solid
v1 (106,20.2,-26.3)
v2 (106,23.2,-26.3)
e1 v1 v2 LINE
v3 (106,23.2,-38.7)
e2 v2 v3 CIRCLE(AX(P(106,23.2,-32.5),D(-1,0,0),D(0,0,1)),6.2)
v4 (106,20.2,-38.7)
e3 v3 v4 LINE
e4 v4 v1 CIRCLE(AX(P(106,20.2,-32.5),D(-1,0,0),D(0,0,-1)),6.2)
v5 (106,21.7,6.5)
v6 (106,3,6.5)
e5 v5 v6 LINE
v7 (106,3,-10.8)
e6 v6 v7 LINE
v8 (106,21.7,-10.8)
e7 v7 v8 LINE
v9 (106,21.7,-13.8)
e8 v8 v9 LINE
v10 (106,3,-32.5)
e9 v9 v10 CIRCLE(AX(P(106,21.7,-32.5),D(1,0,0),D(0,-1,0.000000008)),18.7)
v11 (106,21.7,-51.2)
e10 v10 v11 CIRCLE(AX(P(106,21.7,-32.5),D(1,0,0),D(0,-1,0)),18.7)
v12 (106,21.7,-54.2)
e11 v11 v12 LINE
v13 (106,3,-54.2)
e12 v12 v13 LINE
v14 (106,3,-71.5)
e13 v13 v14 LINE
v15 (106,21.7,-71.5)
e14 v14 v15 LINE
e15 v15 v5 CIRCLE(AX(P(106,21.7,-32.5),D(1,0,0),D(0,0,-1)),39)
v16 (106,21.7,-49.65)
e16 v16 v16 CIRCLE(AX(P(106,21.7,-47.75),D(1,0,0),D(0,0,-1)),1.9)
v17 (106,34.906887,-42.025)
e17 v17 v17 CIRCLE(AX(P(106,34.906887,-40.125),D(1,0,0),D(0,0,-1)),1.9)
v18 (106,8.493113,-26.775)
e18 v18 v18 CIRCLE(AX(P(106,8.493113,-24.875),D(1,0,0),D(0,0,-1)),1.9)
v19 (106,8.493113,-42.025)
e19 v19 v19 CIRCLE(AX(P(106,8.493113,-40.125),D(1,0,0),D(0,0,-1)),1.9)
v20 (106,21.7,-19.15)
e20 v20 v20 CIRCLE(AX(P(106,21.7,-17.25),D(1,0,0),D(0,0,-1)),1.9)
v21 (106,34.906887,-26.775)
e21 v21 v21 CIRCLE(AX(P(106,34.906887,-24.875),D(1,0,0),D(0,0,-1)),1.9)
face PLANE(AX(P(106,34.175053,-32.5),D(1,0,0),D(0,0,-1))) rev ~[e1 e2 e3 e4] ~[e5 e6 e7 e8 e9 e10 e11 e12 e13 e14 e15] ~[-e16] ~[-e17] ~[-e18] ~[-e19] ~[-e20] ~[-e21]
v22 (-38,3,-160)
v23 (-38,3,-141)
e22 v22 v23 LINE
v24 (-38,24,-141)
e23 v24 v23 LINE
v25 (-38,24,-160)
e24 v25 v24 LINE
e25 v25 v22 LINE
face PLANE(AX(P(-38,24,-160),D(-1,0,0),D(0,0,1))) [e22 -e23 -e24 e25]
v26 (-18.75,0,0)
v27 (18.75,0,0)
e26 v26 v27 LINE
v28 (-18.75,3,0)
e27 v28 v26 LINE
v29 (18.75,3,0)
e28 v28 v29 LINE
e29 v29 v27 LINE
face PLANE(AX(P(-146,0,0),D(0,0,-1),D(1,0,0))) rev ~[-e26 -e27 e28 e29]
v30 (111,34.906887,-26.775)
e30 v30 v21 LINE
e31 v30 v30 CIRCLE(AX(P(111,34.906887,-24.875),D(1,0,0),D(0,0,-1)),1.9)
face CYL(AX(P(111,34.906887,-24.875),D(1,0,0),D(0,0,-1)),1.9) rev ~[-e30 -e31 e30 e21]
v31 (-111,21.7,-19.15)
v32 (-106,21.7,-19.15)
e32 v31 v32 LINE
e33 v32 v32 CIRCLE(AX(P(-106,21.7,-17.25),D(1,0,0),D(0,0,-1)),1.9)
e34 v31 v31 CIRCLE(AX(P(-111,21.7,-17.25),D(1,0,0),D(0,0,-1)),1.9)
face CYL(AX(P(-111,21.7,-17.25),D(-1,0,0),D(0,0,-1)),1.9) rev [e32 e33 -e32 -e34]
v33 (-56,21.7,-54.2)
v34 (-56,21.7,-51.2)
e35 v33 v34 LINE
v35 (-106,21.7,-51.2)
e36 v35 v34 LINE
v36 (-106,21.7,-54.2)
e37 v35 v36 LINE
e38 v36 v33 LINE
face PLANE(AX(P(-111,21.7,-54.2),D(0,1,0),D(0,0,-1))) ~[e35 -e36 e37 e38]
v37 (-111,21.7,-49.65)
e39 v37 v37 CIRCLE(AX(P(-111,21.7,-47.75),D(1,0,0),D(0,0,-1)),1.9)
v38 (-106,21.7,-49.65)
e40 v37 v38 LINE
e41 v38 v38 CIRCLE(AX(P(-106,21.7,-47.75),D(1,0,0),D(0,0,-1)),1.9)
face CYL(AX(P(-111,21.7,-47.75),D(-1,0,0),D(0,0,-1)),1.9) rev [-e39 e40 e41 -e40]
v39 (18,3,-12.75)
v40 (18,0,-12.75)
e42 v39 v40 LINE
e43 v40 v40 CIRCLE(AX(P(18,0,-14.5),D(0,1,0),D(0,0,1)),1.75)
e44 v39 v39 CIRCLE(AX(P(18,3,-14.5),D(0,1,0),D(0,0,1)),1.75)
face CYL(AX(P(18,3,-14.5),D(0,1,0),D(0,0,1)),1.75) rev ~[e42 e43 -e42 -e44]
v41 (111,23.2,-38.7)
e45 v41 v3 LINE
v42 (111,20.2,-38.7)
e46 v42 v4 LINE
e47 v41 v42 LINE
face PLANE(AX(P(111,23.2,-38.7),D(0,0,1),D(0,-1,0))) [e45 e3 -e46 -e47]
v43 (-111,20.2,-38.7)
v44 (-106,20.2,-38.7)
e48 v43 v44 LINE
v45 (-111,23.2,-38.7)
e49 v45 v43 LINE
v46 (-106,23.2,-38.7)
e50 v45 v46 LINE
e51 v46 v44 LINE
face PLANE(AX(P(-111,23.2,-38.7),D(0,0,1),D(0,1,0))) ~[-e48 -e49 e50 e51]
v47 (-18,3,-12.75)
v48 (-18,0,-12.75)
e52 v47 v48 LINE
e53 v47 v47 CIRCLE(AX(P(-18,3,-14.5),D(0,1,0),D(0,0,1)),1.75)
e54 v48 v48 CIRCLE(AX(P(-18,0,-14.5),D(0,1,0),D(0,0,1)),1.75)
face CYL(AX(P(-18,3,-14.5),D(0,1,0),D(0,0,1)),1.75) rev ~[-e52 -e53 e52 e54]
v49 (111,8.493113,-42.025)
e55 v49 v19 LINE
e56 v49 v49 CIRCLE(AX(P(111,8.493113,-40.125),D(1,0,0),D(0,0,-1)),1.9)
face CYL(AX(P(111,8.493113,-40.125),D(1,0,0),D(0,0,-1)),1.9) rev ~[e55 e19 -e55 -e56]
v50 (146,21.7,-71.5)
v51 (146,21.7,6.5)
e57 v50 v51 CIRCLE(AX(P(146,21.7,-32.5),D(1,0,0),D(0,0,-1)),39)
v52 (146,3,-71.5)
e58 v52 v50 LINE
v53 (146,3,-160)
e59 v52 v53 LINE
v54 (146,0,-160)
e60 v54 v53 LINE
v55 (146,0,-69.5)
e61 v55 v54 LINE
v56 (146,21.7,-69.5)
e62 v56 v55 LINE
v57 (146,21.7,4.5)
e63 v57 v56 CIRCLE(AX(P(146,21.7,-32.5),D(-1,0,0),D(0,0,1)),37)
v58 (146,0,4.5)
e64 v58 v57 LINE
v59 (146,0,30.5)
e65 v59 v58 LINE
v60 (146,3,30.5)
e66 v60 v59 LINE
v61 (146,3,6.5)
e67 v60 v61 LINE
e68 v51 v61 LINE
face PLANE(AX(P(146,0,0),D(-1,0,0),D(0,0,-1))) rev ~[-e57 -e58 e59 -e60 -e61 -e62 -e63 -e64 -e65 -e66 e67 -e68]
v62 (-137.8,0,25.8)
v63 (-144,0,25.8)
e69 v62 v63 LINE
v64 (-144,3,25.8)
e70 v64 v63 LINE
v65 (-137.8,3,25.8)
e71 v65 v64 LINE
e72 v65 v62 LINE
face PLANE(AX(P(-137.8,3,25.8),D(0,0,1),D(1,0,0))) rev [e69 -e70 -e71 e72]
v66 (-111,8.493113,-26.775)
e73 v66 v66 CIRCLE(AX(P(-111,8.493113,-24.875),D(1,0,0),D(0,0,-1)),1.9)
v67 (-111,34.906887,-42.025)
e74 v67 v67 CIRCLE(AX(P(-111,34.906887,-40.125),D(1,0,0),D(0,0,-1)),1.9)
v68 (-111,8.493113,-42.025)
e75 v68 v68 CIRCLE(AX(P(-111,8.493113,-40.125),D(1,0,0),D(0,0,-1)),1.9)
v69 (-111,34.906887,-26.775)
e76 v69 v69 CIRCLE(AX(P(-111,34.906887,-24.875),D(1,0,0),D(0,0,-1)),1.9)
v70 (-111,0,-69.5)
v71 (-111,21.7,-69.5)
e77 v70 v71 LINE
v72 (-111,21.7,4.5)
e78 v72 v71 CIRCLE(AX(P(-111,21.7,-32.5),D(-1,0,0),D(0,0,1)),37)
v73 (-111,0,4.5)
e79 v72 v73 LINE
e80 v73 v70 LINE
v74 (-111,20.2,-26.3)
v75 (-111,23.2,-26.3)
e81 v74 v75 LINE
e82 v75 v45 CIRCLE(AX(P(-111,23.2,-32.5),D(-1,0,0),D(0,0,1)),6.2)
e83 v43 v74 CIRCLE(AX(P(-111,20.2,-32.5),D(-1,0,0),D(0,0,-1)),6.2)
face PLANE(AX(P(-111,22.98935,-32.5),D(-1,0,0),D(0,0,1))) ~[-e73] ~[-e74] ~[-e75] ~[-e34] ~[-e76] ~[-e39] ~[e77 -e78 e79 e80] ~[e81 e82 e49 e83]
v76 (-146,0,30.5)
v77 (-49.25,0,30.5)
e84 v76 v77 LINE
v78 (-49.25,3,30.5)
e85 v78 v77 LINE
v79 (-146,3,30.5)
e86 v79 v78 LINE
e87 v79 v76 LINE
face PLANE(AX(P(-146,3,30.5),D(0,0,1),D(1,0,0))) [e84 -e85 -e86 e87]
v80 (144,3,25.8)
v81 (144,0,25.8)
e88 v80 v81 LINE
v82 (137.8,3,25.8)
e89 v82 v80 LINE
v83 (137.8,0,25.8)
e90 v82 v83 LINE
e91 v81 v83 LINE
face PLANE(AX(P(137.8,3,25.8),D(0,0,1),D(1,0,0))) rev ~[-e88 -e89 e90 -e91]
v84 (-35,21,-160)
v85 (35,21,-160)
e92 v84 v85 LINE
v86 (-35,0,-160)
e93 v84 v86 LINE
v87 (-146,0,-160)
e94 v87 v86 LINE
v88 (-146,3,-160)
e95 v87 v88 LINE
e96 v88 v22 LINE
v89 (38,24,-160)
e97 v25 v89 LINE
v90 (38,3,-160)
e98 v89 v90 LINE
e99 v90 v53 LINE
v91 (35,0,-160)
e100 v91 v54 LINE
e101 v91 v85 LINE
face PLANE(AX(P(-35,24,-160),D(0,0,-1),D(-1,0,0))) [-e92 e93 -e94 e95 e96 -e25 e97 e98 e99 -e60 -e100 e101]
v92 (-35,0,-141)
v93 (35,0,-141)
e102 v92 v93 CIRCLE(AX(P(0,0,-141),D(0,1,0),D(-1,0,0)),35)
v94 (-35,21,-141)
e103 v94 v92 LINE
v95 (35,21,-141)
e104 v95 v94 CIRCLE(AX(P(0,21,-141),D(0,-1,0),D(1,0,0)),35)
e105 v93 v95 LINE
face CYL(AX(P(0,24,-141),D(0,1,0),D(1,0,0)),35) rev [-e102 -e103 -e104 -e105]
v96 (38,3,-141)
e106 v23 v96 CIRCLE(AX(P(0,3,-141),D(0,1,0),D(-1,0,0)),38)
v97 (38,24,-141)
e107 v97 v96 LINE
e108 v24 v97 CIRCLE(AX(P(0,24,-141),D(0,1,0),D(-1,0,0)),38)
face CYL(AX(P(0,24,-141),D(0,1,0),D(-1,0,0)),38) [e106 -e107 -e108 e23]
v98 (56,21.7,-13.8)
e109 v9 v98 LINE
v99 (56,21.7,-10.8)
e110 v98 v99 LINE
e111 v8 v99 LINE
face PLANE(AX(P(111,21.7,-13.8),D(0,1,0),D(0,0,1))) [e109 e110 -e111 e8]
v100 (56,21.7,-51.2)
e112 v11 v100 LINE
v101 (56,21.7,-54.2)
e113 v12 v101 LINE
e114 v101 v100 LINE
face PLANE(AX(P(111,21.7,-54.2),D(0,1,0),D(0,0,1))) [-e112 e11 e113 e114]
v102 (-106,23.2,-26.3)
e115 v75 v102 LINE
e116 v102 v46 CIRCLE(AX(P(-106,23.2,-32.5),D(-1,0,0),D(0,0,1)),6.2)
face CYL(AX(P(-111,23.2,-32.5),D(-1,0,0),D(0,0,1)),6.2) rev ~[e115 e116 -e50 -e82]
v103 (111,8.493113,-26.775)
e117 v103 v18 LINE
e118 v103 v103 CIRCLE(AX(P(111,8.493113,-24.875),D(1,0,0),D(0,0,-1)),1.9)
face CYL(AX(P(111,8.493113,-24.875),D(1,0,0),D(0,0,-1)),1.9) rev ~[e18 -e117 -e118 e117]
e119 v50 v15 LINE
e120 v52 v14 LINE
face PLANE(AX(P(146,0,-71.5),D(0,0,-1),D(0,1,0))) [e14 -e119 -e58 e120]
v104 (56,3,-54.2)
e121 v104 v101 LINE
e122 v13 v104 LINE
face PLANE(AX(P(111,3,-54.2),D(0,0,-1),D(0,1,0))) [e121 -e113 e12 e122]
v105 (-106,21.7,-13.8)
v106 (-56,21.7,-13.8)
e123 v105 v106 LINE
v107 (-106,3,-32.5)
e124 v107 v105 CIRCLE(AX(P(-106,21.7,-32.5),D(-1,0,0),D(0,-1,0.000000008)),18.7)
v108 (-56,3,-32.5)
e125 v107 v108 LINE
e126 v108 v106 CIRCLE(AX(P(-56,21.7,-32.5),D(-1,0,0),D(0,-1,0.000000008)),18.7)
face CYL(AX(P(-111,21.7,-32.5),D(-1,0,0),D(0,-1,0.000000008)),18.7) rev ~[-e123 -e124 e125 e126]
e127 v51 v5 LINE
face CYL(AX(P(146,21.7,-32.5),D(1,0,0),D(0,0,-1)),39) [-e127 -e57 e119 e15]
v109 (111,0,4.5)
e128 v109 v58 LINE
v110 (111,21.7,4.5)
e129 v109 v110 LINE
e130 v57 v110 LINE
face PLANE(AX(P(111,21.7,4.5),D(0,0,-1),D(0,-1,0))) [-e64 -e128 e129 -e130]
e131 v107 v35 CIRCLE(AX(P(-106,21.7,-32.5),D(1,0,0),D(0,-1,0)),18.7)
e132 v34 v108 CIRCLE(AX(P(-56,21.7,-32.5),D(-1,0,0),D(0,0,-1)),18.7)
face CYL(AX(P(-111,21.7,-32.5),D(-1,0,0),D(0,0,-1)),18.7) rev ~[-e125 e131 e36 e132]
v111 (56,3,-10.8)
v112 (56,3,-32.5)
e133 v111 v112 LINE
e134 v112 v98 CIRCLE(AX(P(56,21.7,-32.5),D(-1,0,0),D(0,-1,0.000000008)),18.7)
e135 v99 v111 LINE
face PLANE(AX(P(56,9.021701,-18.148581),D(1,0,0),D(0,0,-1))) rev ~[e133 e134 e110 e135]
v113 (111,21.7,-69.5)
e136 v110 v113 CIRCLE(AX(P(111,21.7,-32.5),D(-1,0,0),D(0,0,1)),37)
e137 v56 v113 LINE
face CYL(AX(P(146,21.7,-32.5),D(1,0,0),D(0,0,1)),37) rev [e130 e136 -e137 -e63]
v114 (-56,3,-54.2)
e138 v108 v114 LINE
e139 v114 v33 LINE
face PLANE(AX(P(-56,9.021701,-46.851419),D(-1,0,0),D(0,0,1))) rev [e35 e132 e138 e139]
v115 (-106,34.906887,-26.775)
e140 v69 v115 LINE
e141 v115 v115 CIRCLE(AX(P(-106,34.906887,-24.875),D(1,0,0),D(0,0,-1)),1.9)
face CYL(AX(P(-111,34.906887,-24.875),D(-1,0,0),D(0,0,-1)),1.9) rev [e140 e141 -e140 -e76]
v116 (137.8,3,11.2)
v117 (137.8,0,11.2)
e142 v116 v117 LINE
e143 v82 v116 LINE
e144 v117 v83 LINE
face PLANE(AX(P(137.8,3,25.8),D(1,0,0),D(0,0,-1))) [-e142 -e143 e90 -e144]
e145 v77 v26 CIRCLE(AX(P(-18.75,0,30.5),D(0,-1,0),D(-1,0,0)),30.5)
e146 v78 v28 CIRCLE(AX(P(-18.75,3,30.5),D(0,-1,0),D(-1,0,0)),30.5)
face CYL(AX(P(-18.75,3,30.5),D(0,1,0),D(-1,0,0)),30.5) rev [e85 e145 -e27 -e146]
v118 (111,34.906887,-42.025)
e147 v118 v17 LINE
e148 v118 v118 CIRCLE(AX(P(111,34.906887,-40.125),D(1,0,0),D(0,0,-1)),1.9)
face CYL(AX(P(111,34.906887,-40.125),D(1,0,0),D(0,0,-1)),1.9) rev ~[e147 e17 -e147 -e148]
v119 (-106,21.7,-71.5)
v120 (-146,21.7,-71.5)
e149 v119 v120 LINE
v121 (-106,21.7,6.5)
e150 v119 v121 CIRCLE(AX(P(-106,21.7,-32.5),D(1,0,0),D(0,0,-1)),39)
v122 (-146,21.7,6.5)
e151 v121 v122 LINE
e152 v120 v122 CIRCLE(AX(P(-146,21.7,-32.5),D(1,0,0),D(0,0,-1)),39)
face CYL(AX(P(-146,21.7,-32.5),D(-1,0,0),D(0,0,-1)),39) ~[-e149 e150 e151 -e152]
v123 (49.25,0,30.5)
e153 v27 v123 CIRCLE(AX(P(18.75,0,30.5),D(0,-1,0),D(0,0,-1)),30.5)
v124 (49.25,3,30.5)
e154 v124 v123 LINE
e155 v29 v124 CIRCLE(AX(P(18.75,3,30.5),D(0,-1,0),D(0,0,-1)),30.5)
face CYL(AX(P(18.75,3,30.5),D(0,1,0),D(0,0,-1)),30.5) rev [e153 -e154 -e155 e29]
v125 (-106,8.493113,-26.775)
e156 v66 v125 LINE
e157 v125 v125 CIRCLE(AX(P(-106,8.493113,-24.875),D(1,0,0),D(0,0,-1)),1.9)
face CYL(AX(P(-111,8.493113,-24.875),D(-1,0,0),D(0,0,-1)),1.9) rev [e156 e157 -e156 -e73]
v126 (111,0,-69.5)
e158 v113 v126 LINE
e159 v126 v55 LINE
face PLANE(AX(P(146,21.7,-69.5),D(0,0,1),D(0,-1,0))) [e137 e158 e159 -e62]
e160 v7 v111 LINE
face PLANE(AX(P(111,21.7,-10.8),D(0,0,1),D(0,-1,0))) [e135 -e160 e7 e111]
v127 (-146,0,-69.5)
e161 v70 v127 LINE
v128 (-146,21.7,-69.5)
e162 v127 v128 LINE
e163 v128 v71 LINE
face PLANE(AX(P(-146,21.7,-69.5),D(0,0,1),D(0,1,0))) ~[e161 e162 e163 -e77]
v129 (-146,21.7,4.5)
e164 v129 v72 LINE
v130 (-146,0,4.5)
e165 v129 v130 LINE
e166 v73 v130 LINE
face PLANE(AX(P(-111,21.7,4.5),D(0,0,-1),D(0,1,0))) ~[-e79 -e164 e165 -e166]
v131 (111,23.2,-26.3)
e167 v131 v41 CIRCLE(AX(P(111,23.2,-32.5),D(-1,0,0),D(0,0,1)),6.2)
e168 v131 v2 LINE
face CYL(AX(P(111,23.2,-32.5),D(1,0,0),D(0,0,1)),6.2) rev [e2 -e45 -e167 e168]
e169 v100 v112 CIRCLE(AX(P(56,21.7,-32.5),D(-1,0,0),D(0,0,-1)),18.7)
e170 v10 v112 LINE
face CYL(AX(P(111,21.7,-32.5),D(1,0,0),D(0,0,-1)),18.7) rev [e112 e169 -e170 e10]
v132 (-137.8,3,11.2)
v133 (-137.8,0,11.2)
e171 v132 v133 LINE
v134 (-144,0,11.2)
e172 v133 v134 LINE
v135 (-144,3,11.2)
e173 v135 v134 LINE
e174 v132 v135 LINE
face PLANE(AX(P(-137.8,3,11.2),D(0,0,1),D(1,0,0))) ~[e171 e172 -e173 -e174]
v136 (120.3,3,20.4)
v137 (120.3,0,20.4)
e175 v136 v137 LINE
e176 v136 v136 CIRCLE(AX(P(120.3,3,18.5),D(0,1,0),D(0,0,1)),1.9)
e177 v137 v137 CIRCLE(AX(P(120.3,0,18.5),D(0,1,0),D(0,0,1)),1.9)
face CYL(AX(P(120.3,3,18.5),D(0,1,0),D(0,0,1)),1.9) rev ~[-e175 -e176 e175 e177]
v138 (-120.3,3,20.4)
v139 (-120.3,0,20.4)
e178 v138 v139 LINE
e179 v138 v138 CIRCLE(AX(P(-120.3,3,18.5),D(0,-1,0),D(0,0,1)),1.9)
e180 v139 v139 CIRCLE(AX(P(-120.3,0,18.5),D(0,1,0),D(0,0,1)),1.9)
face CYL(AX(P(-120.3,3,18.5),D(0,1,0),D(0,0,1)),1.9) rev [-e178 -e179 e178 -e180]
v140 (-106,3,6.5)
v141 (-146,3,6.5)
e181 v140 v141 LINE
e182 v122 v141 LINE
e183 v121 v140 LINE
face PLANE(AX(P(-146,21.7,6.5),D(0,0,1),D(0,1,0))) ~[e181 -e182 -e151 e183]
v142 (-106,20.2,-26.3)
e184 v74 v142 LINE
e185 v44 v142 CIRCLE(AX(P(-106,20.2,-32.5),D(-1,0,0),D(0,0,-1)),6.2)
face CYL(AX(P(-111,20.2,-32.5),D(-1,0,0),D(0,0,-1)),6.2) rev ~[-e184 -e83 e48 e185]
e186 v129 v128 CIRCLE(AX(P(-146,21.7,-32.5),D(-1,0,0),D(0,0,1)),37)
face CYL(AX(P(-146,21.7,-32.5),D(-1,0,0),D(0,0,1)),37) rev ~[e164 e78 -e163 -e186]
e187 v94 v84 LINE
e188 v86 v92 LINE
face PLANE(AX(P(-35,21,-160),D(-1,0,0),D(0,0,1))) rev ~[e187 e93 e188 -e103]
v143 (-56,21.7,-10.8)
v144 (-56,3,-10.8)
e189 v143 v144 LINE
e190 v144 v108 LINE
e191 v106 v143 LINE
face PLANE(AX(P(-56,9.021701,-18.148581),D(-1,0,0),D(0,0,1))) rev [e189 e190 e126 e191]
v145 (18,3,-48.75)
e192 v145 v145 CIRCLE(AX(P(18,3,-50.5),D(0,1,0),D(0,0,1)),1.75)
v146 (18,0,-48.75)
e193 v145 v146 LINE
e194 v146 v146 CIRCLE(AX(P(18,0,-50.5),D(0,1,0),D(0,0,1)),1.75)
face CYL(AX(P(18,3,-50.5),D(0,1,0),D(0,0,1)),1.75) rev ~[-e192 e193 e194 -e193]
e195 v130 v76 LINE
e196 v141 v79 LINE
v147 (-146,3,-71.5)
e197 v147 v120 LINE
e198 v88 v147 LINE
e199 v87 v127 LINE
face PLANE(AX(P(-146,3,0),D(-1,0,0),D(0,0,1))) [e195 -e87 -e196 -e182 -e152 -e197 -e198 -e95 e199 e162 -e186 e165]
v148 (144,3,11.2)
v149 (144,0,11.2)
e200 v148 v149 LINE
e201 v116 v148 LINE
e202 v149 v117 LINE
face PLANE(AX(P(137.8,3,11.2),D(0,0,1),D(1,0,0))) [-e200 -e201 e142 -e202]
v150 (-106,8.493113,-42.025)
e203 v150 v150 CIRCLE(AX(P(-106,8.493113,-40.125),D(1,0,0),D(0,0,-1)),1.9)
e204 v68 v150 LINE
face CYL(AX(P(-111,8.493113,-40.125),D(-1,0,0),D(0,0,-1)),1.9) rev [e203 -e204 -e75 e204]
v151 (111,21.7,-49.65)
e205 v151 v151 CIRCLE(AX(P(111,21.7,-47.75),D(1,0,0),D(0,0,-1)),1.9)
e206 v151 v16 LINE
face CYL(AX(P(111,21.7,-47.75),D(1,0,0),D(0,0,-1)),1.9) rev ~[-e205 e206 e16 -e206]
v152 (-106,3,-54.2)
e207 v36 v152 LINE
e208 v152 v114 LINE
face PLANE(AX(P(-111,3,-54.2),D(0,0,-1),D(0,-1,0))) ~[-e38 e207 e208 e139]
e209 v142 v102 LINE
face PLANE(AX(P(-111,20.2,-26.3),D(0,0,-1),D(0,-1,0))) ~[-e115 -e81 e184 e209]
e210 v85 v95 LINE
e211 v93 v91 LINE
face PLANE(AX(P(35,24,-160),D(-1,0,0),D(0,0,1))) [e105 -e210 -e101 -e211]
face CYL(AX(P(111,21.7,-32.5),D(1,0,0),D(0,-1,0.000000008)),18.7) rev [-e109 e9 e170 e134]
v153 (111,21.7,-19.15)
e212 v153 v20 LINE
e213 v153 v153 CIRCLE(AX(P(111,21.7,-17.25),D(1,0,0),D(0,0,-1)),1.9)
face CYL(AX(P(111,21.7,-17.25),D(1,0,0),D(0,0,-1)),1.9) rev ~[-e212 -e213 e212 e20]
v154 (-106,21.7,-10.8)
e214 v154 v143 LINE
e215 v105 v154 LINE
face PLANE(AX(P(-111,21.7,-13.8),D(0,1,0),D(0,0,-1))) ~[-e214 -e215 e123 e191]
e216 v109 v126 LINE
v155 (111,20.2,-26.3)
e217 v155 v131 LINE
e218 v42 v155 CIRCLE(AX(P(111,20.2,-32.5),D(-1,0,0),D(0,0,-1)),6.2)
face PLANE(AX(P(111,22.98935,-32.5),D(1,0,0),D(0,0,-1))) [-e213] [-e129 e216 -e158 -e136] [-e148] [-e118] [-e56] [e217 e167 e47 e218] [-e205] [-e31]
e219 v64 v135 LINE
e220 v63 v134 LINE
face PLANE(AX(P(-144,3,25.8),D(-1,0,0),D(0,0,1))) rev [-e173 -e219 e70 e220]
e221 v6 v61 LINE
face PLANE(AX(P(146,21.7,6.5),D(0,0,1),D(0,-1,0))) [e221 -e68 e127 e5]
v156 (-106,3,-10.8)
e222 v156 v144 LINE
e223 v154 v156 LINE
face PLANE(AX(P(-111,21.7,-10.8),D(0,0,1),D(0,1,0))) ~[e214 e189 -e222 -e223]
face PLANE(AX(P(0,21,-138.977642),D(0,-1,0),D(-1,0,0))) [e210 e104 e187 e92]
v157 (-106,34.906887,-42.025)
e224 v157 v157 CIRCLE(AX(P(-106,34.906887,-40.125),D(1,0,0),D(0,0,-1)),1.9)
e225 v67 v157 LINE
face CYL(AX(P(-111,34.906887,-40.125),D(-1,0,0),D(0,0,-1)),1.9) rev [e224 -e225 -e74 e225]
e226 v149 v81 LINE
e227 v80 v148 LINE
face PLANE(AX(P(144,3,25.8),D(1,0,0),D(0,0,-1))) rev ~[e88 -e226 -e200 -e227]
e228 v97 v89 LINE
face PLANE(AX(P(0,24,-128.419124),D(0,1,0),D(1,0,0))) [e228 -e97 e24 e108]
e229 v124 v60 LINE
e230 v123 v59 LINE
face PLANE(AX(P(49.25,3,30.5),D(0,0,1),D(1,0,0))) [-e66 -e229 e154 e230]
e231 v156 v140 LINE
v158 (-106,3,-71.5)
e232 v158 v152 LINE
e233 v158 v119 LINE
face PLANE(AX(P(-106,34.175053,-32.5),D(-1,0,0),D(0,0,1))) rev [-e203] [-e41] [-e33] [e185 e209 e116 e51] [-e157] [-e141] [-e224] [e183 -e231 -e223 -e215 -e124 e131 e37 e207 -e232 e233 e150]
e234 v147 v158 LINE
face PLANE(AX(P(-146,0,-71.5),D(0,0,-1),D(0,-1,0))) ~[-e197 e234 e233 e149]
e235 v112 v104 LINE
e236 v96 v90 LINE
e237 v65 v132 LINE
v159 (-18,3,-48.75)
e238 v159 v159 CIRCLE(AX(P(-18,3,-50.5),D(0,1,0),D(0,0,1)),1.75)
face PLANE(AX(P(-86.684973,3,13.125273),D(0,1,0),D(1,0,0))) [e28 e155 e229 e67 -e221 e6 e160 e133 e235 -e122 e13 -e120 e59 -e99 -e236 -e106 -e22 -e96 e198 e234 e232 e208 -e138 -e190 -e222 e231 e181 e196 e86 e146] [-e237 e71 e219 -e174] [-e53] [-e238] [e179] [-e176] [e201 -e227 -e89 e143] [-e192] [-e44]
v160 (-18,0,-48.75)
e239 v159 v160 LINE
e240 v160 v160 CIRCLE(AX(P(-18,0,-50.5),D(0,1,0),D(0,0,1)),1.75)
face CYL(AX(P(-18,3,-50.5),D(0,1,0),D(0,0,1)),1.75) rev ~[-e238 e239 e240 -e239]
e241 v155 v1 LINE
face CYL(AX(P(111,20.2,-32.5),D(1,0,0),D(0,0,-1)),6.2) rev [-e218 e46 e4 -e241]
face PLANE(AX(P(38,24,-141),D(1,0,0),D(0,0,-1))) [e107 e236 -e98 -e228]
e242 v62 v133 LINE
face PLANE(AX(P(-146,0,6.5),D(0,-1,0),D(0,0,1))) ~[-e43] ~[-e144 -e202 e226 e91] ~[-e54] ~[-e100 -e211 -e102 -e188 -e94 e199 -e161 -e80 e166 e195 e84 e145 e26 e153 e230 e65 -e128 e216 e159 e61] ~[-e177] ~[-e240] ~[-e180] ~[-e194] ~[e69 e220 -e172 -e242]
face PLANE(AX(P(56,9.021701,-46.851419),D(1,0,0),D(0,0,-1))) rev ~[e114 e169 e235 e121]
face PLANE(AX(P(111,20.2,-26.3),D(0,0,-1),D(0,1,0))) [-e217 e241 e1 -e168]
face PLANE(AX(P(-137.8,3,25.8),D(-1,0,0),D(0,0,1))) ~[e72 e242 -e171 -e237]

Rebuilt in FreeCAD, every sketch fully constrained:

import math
import FreeCAD as App
import Part
import Sketcher
from FreeCAD import Vector

doc = App.newDocument("Part")
body = doc.addObject("PartDesign::Body", "Body")

# Sketch on XZ plane
sketch1 = body.newObject("Sketcher::SketchObject", "Sketch")
sketch1.AttachmentSupport = (doc.getObject("XZ_Plane"), [""])
sketch1.MapMode = "FlatFace"
sketch1.addGeometry(Part.LineSegment(Vector(-146, -160, 0), Vector(-146, 0, 0)), False)
sketch1.addGeometry(Part.LineSegment(Vector(-146, 0, 0), Vector(146, 0, 0)), False)
sketch1.addGeometry(Part.LineSegment(Vector(146, 0, 0), Vector(146, -160, 0)), False)
sketch1.addGeometry(Part.LineSegment(Vector(146, -160, 0), Vector(-146, -160, 0)), False)
sketch1.addConstraint(Sketcher.Constraint("Coincident", 0, 2, 1, 1))
sketch1.addConstraint(Sketcher.Constraint("Coincident", 1, 2, 2, 1))
sketch1.addConstraint(Sketcher.Constraint("Coincident", 2, 2, 3, 1))
sketch1.addConstraint(Sketcher.Constraint("Coincident", 3, 2, 0, 1))
sketch1.addConstraint(Sketcher.Constraint("Vertical", 0))
sketch1.addConstraint(Sketcher.Constraint("Horizontal", 1))
sketch1.addConstraint(Sketcher.Constraint("Vertical", 2))
sketch1.addConstraint(Sketcher.Constraint("Horizontal", 3))
sketch1.addConstraint(Sketcher.Constraint("Symmetric", 0, 2, 1, 2, -1, 1))
sketch1.addConstraint(Sketcher.Constraint("DistanceX", 1, 1, 1, 2, 292.0))
sketch1.addConstraint(Sketcher.Constraint("DistanceY", 0, 1, 0, 2, 160.0))
pad1 = body.newObject("PartDesign::Pad", "Pad")
pad1.Profile = sketch1
pad1.Length = 3
pad1.Reversed = True

# Sketch on XZ plane
sketch2 = body.newObject("Sketcher::SketchObject", "Sketch001")
sketch2.AttachmentSupport = (doc.getObject("XZ_Plane"), [""])
sketch2.MapMode = "FlatFace"
sketch2.AttachmentOffset = App.Placement(Vector(0, 0, -3), App.Rotation())
sketch2.addGeometry(Part.ArcOfCircle(Part.Circle(Vector(-19, 31, 0), Vector(0, 0, 1), 31), math.radians(-180), math.radians(-90)), False)
sketch2.addGeometry(Part.LineSegment(Vector(-19, 0, 0), Vector(-146, 0, 0)), False)
sketch2.addGeometry(Part.LineSegment(Vector(-146, 0, 0), Vector(-146, 30, 0)), False)
sketch2.addGeometry(Part.LineSegment(Vector(-146, 30, 0), Vector(-49, 30, 0)), False)
sketch2.addGeometry(Part.LineSegment(Vector(146, 30, 0), Vector(146, 0, 0)), False)
sketch2.addGeometry(Part.LineSegment(Vector(146, 0, 0), Vector(19, 0, 0)), False)
sketch2.addGeometry(Part.ArcOfCircle(Part.Circle(Vector(19, 31, 0), Vector(0, 0, 1), 31), math.radians(-90), math.radians(0)), False)
sketch2.addGeometry(Part.LineSegment(Vector(49, 30, 0), Vector(146, 30, 0)), False)
sketch2.addConstraint(Sketcher.Constraint("Tangent", 0, 2, 1, 1))
sketch2.addConstraint(Sketcher.Constraint("Coincident", 1, 2, 2, 1))
sketch2.addConstraint(Sketcher.Constraint("Coincident", 2, 2, 3, 1))
sketch2.addConstraint(Sketcher.Constraint("Coincident", 3, 2, 0, 1))
sketch2.addConstraint(Sketcher.Constraint("Coincident", 4, 2, 5, 1))
sketch2.addConstraint(Sketcher.Constraint("Tangent", 5, 2, 6, 1))
sketch2.addConstraint(Sketcher.Constraint("Coincident", 6, 2, 7, 1))
sketch2.addConstraint(Sketcher.Constraint("Coincident", 7, 2, 4, 1))
sketch2.addConstraint(Sketcher.Constraint("Horizontal", 1))
sketch2.addConstraint(Sketcher.Constraint("Vertical", 2))
sketch2.addConstraint(Sketcher.Constraint("Horizontal", 3))
sketch2.addConstraint(Sketcher.Constraint("Vertical", 4))
sketch2.addConstraint(Sketcher.Constraint("Horizontal", 5))
sketch2.addConstraint(Sketcher.Constraint("Horizontal", 7))
sketch2.addConstraint(Sketcher.Constraint("Equal", 0, 6))
sketch2.addConstraint(Sketcher.Constraint("Symmetric", 1, 2, 4, 2, -1, 1))
sketch2.addConstraint(Sketcher.Constraint("Symmetric", 0, 3, 6, 3, -2))
sketch2.addConstraint(Sketcher.Constraint("Horizontal", 6, 3, 2, 2))
sketch2.addConstraint(Sketcher.Constraint("Horizontal", 3, 2, 6, 2))
sketch2.addConstraint(Sketcher.Constraint("Radius", 0, 30.5))
sketch2.addConstraint(Sketcher.Constraint("DistanceX", 1, 2, -1, 1, 146.0))
sketch2.addConstraint(Sketcher.Constraint("DistanceX", 3, 2, 6, 3, 68.0))
pad2 = body.newObject("PartDesign::Pad", "Pad001")
pad2.Profile = sketch2
pad2.Length = 3

# Sketch on YZ plane
sketch3 = body.newObject("Sketcher::SketchObject", "Sketch002")
sketch3.AttachmentSupport = (doc.getObject("YZ_Plane"), [""])
sketch3.MapMode = "FlatFace"
sketch3.AttachmentOffset = App.Placement(Vector(0, 0, 111), App.Rotation())
sketch3.addGeometry(Part.LineSegment(Vector(21.7, -10.8, 0), Vector(3, -10.8, 0)), False)
sketch3.addGeometry(Part.LineSegment(Vector(3, -10.8, 0), Vector(3, -32.5, 0)), False)
sketch3.addGeometry(Part.ArcOfCircle(Part.Circle(Vector(21.7, -32.5, 0), Vector(0, 0, 1), 18.7), math.radians(90), math.radians(180)), False)
sketch3.addGeometry(Part.LineSegment(Vector(21.7, -13.8, 0), Vector(21.7, -10.8, 0)), False)
sketch3.addGeometry(Part.ArcOfCircle(Part.Circle(Vector(21.7, -32.5, 0), Vector(0, 0, 1), 18.7), math.radians(180), math.radians(270)), False)
sketch3.addGeometry(Part.LineSegment(Vector(3, -32.5, 0), Vector(3, -54.2, 0)), False)
sketch3.addGeometry(Part.LineSegment(Vector(3, -54.2, 0), Vector(21.7, -54.2, 0)), False)
sketch3.addGeometry(Part.LineSegment(Vector(21.7, -54.2, 0), Vector(21.7, -51.2, 0)), False)
sketch3.addConstraint(Sketcher.Constraint("Coincident", 0, 2, 1, 1))
sketch3.addConstraint(Sketcher.Constraint("Tangent", 1, 2, 2, 2))
sketch3.addConstraint(Sketcher.Constraint("Coincident", 2, 1, 3, 1))
sketch3.addConstraint(Sketcher.Constraint("Coincident", 3, 2, 0, 1))
sketch3.addConstraint(Sketcher.Constraint("Tangent", 4, 1, 5, 1))
sketch3.addConstraint(Sketcher.Constraint("Coincident", 5, 2, 6, 1))
sketch3.addConstraint(Sketcher.Constraint("Coincident", 6, 2, 7, 1))
sketch3.addConstraint(Sketcher.Constraint("Coincident", 7, 2, 4, 2))
sketch3.addConstraint(Sketcher.Constraint("Horizontal", 0))
sketch3.addConstraint(Sketcher.Constraint("Vertical", 1))
sketch3.addConstraint(Sketcher.Constraint("Vertical", 3))
sketch3.addConstraint(Sketcher.Constraint("Vertical", 5))
sketch3.addConstraint(Sketcher.Constraint("Horizontal", 6))
sketch3.addConstraint(Sketcher.Constraint("Vertical", 7))
sketch3.addConstraint(Sketcher.Constraint("Coincident", 4, 3, 2, 3))
sketch3.addConstraint(Sketcher.Constraint("Equal", 2, 4))
sketch3.addConstraint(Sketcher.Constraint("Vertical", 4, 3, 2, 1))
sketch3.addConstraint(Sketcher.Constraint("Vertical", 3, 2, 6, 2))
sketch3.addConstraint(Sketcher.Constraint("Equal", 1, 5))
sketch3.addConstraint(Sketcher.Constraint("Radius", 2, 18.7))
sketch3.addConstraint(Sketcher.Constraint("DistanceY", 3, 1, 3, 2, 3.0))
sketch3.addConstraint(Sketcher.Constraint("DistanceX", -1, 1, 0, 2, 3.0))
sketch3.addConstraint(Sketcher.Constraint("DistanceY", 2, 3, -1, 1, 32.5))
pad3 = body.newObject("PartDesign::Pad", "Pad002")
pad3.Profile = sketch3
pad3.Length = 55
pad3.Reversed = True

# Sketch on YZ plane
sketch4 = body.newObject("Sketcher::SketchObject", "Sketch003")
sketch4.AttachmentSupport = (doc.getObject("YZ_Plane"), [""])
sketch4.MapMode = "FlatFace"
sketch4.AttachmentOffset = App.Placement(Vector(0, 0, 111), App.Rotation())
sketch4.addGeometry(Part.LineSegment(Vector(0, -71.5, 0), Vector(21.7, -71.5, 0)), False)
sketch4.addGeometry(Part.ArcOfCircle(Part.Circle(Vector(21.7, -32.5, 0), Vector(0, 0, 1), 39), math.radians(-90), math.radians(90)), False)
sketch4.addGeometry(Part.LineSegment(Vector(21.7, 6.5, 0), Vector(0, 6.5, 0)), False)
sketch4.addGeometry(Part.LineSegment(Vector(0, 6.5, 0), Vector(0, -71.5, 0)), False)
sketch4.addGeometry(Part.Circle(Vector(8.5, -24.9, 0), Vector(0, 0, 1), 1.9), False)
sketch4.addGeometry(Part.Circle(Vector(8.5, -40.1, 0), Vector(0, 0, 1), 1.9), False)
sketch4.addGeometry(Part.Circle(Vector(21.7, -17.2, 0), Vector(0, 0, 1), 1.9), False)
sketch4.addGeometry(Part.LineSegment(Vector(20.2, -26.3, 0), Vector(23.2, -26.3, 0)), False)
sketch4.addGeometry(Part.ArcOfCircle(Part.Circle(Vector(23.2, -32.5, 0), Vector(0, 0, 1), 6.2), math.radians(-90), math.radians(90)), False)
sketch4.addGeometry(Part.LineSegment(Vector(23.2, -38.7, 0), Vector(20.2, -38.7, 0)), False)
sketch4.addGeometry(Part.ArcOfCircle(Part.Circle(Vector(20.2, -32.5, 0), Vector(0, 0, 1), 6.2), math.radians(90), math.radians(270)), False)
sketch4.addGeometry(Part.Circle(Vector(34.9, -24.9, 0), Vector(0, 0, 1), 1.9), False)
sketch4.addGeometry(Part.Circle(Vector(21.7, -47.8, 0), Vector(0, 0, 1), 1.9), False)
sketch4.addGeometry(Part.Circle(Vector(34.9, -40.1, 0), Vector(0, 0, 1), 1.9), False)
sketch4.addConstraint(Sketcher.Constraint("Tangent", 0, 2, 1, 1))
sketch4.addConstraint(Sketcher.Constraint("Tangent", 1, 2, 2, 1))
sketch4.addConstraint(Sketcher.Constraint("Coincident", 2, 2, 3, 1))
sketch4.addConstraint(Sketcher.Constraint("Coincident", 3, 2, 0, 1))
sketch4.addConstraint(Sketcher.Constraint("Tangent", 7, 2, 8, 2))
sketch4.addConstraint(Sketcher.Constraint("Tangent", 8, 1, 9, 1))
sketch4.addConstraint(Sketcher.Constraint("Tangent", 9, 2, 10, 2))
sketch4.addConstraint(Sketcher.Constraint("Tangent", 10, 1, 7, 1))
sketch4.addConstraint(Sketcher.Constraint("Horizontal", 0))
sketch4.addConstraint(Sketcher.Constraint("Horizontal", 2))
sketch4.addConstraint(Sketcher.Constraint("Vertical", 3))
sketch4.addConstraint(Sketcher.Constraint("Horizontal", 7))
sketch4.addConstraint(Sketcher.Constraint("Horizontal", 9))
sketch4.addConstraint(Sketcher.Constraint("Equal", 4, 5))
sketch4.addConstraint(Sketcher.Constraint("Equal", 5, 6))
sketch4.addConstraint(Sketcher.Constraint("Equal", 6, 11))
sketch4.addConstraint(Sketcher.Constraint("Equal", 11, 12))
sketch4.addConstraint(Sketcher.Constraint("Equal", 12, 13))
sketch4.addConstraint(Sketcher.Constraint("PointOnObject", 2, 2, -2))
sketch4.addConstraint(Sketcher.Constraint("Horizontal", 1, 3, 8, 3))
sketch4.addConstraint(Sketcher.Constraint("Horizontal", 4, 3, 11, 3))
sketch4.addConstraint(Sketcher.Constraint("Horizontal", 5, 3, 13, 3))
sketch4.addConstraint(Sketcher.Constraint("Vertical", 4, 3, 5, 3))
sketch4.addConstraint(Sketcher.Constraint("Vertical", 1, 3, 6, 3))
sketch4.addConstraint(Sketcher.Constraint("Vertical", 6, 3, 12, 3))
sketch4.addConstraint(Sketcher.Constraint("Vertical", 11, 3, 13, 3))
sketch4.addConstraint(Sketcher.Constraint("Radius", 1, 39.0))
sketch4.addConstraint(Sketcher.Constraint("Diameter", 4, 3.8))
sketch4.addConstraint(Sketcher.Constraint("Radius", 8, 6.2))
sketch4.addConstraint(Sketcher.Constraint("DistanceX", 7, 1, 7, 2, 3.0))
sketch4.addConstraint(Sketcher.Constraint("DistanceX", 0, 1, 0, 2, 21.7))
sketch4.addConstraint(Sketcher.Constraint("DistanceY", 1, 3, -1, 1, 32.5))
sketch4.addConstraint(Sketcher.Constraint("DistanceX", -1, 1, 8, 3, 23.2))
sketch4.addConstraint(Sketcher.Constraint("DistanceY", 6, 3, -1, 1, 17.25))
sketch4.addConstraint(Sketcher.Constraint("DistanceY", 12, 3, -1, 1, 47.75))
sketch4.addConstraint(Sketcher.Constraint("DistanceY", 5, 3, 4, 3, 15.25))
sketch4.addConstraint(Sketcher.Constraint("DistanceY", 4, 3, -1, 1, 24.875))
sketch4.addConstraint(Sketcher.Constraint("DistanceX", -1, 1, 4, 3, 8.493113))
sketch4.addConstraint(Sketcher.Constraint("DistanceX", -1, 1, 11, 3, 34.906887))
pad4 = body.newObject("PartDesign::Pad", "Pad003")
pad4.Profile = sketch4
pad4.Length = 5
pad4.Reversed = True

# Sketch on YZ plane
sketch5 = body.newObject("Sketcher::SketchObject", "Sketch004")
sketch5.AttachmentSupport = (doc.getObject("YZ_Plane"), [""])
sketch5.MapMode = "FlatFace"
sketch5.AttachmentOffset = App.Placement(Vector(0, 0, 146), App.Rotation())
sketch5.addGeometry(Part.LineSegment(Vector(0, 6.5, 0), Vector(0, 4.5, 0)), False)
sketch5.addGeometry(Part.LineSegment(Vector(0, 4.5, 0), Vector(21.7, 4.5, 0)), False)
sketch5.addGeometry(Part.ArcOfCircle(Part.Circle(Vector(21.7, -32.5, 0), Vector(0, 0, 1), 37), math.radians(-90), math.radians(90)), False)
sketch5.addGeometry(Part.LineSegment(Vector(21.7, -69.5, 0), Vector(0, -69.5, 0)), False)
sketch5.addGeometry(Part.LineSegment(Vector(0, -69.5, 0), Vector(0, -71.5, 0)), False)
sketch5.addGeometry(Part.LineSegment(Vector(0, -71.5, 0), Vector(21.7, -71.5, 0)), False)
sketch5.addGeometry(Part.ArcOfCircle(Part.Circle(Vector(21.7, -32.5, 0), Vector(0, 0, 1), 39), math.radians(-90), math.radians(90)), False)
sketch5.addGeometry(Part.LineSegment(Vector(21.7, 6.5, 0), Vector(0, 6.5, 0)), False)
sketch5.addConstraint(Sketcher.Constraint("Coincident", 0, 2, 1, 1))
sketch5.addConstraint(Sketcher.Constraint("Tangent", 1, 2, 2, 2))
sketch5.addConstraint(Sketcher.Constraint("Tangent", 2, 1, 3, 1))
sketch5.addConstraint(Sketcher.Constraint("Coincident", 3, 2, 4, 1))
sketch5.addConstraint(Sketcher.Constraint("Coincident", 4, 2, 5, 1))
sketch5.addConstraint(Sketcher.Constraint("Tangent", 5, 2, 6, 1))
sketch5.addConstraint(Sketcher.Constraint("Tangent", 6, 2, 7, 1))
sketch5.addConstraint(Sketcher.Constraint("Coincident", 7, 2, 0, 1))
sketch5.addConstraint(Sketcher.Constraint("Vertical", 0))
sketch5.addConstraint(Sketcher.Constraint("Horizontal", 1))
sketch5.addConstraint(Sketcher.Constraint("Horizontal", 3))
sketch5.addConstraint(Sketcher.Constraint("Vertical", 4))
sketch5.addConstraint(Sketcher.Constraint("Horizontal", 5))
sketch5.addConstraint(Sketcher.Constraint("Horizontal", 7))
sketch5.addConstraint(Sketcher.Constraint("Coincident", 6, 3, 2, 3))
sketch5.addConstraint(Sketcher.Constraint("PointOnObject", 0, 2, -2))
sketch5.addConstraint(Sketcher.Constraint("PointOnObject", 3, 2, -2))
sketch5.addConstraint(Sketcher.Constraint("Radius", 2, 37.0))
sketch5.addConstraint(Sketcher.Constraint("Radius", 6, 39.0))
sketch5.addConstraint(Sketcher.Constraint("DistanceX", 1, 1, 1, 2, 21.7))
sketch5.addConstraint(Sketcher.Constraint("DistanceY", 2, 3, -1, 1, 32.5))
pad5 = body.newObject("PartDesign::Pad", "Pad004")
pad5.Profile = sketch5
pad5.Length = 35
pad5.Reversed = True

# Sketch on YZ plane
sketch6 = body.newObject("Sketcher::SketchObject", "Sketch005")
sketch6.AttachmentSupport = (doc.getObject("YZ_Plane"), [""])
sketch6.MapMode = "FlatFace"
sketch6.AttachmentOffset = App.Placement(Vector(0, 0, 111), App.Rotation())
sketch6.addGeometry(Part.LineSegment(Vector(21.7, 4.5, 0), Vector(0, 4.5, 0)), False)
sketch6.addGeometry(Part.LineSegment(Vector(0, 4.5, 0), Vector(0, -69.5, 0)), False)
sketch6.addGeometry(Part.LineSegment(Vector(0, -69.5, 0), Vector(21.7, -69.5, 0)), False)
sketch6.addGeometry(Part.ArcOfCircle(Part.Circle(Vector(21.7, -32.5, 0), Vector(0, 0, 1), 37), math.radians(-90), math.radians(90)), False)
sketch6.addGeometry(Part.Circle(Vector(8.5, -24.9, 0), Vector(0, 0, 1), 1.9), False)
sketch6.addGeometry(Part.Circle(Vector(8.5, -40.1, 0), Vector(0, 0, 1), 1.9), False)
sketch6.addGeometry(Part.Circle(Vector(21.7, -17.2, 0), Vector(0, 0, 1), 1.9), False)
sketch6.addGeometry(Part.LineSegment(Vector(20.2, -26.3, 0), Vector(23.2, -26.3, 0)), False)
sketch6.addGeometry(Part.ArcOfCircle(Part.Circle(Vector(23.2, -32.5, 0), Vector(0, 0, 1), 6.2), math.radians(-90), math.radians(90)), False)
sketch6.addGeometry(Part.LineSegment(Vector(23.2, -38.7, 0), Vector(20.2, -38.7, 0)), False)
sketch6.addGeometry(Part.ArcOfCircle(Part.Circle(Vector(20.2, -32.5, 0), Vector(0, 0, 1), 6.2), math.radians(90), math.radians(270)), False)
sketch6.addGeometry(Part.Circle(Vector(34.9, -24.9, 0), Vector(0, 0, 1), 1.9), False)
sketch6.addGeometry(Part.Circle(Vector(21.7, -47.8, 0), Vector(0, 0, 1), 1.9), False)
sketch6.addGeometry(Part.Circle(Vector(34.9, -40.1, 0), Vector(0, 0, 1), 1.9), False)
sketch6.addConstraint(Sketcher.Constraint("Coincident", 0, 2, 1, 1))
sketch6.addConstraint(Sketcher.Constraint("Coincident", 1, 2, 2, 1))
sketch6.addConstraint(Sketcher.Constraint("Tangent", 2, 2, 3, 1))
sketch6.addConstraint(Sketcher.Constraint("Tangent", 3, 2, 0, 1))
sketch6.addConstraint(Sketcher.Constraint("Tangent", 7, 2, 8, 2))
sketch6.addConstraint(Sketcher.Constraint("Tangent", 8, 1, 9, 1))
sketch6.addConstraint(Sketcher.Constraint("Tangent", 9, 2, 10, 2))
sketch6.addConstraint(Sketcher.Constraint("Tangent", 10, 1, 7, 1))
sketch6.addConstraint(Sketcher.Constraint("Horizontal", 0))
sketch6.addConstraint(Sketcher.Constraint("Vertical", 1))
sketch6.addConstraint(Sketcher.Constraint("Horizontal", 2))
sketch6.addConstraint(Sketcher.Constraint("Horizontal", 7))
sketch6.addConstraint(Sketcher.Constraint("Horizontal", 9))
sketch6.addConstraint(Sketcher.Constraint("Equal", 4, 5))
sketch6.addConstraint(Sketcher.Constraint("Equal", 5, 6))
sketch6.addConstraint(Sketcher.Constraint("Equal", 6, 11))
sketch6.addConstraint(Sketcher.Constraint("Equal", 11, 12))
sketch6.addConstraint(Sketcher.Constraint("Equal", 12, 13))
sketch6.addConstraint(Sketcher.Constraint("PointOnObject", 0, 2, -2))
sketch6.addConstraint(Sketcher.Constraint("Horizontal", 3, 3, 8, 3))
sketch6.addConstraint(Sketcher.Constraint("Horizontal", 4, 3, 11, 3))
sketch6.addConstraint(Sketcher.Constraint("Horizontal", 5, 3, 13, 3))
sketch6.addConstraint(Sketcher.Constraint("Vertical", 4, 3, 5, 3))
sketch6.addConstraint(Sketcher.Constraint("Vertical", 3, 3, 6, 3))
sketch6.addConstraint(Sketcher.Constraint("Vertical", 6, 3, 12, 3))
sketch6.addConstraint(Sketcher.Constraint("Vertical", 11, 3, 13, 3))
sketch6.addConstraint(Sketcher.Constraint("Radius", 3, 37.0))
sketch6.addConstraint(Sketcher.Constraint("Diameter", 4, 3.8))
sketch6.addConstraint(Sketcher.Constraint("Radius", 8, 6.2))
sketch6.addConstraint(Sketcher.Constraint("DistanceX", 7, 1, 7, 2, 3.0))
sketch6.addConstraint(Sketcher.Constraint("DistanceX", 0, 2, 0, 1, 21.7))
sketch6.addConstraint(Sketcher.Constraint("DistanceY", 3, 3, -1, 1, 32.5))
sketch6.addConstraint(Sketcher.Constraint("DistanceX", -1, 1, 8, 3, 23.2))
sketch6.addConstraint(Sketcher.Constraint("DistanceY", 6, 3, -1, 1, 17.25))
sketch6.addConstraint(Sketcher.Constraint("DistanceY", 12, 3, -1, 1, 47.75))
sketch6.addConstraint(Sketcher.Constraint("DistanceY", 5, 3, 4, 3, 15.25))
sketch6.addConstraint(Sketcher.Constraint("DistanceY", 4, 3, -1, 1, 24.875))
sketch6.addConstraint(Sketcher.Constraint("DistanceX", -1, 1, 4, 3, 8.493113))
sketch6.addConstraint(Sketcher.Constraint("DistanceX", -1, 1, 11, 3, 34.906887))
pocket1 = body.newObject("PartDesign::Pocket", "Pocket")
pocket1.Profile = sketch6
pocket1.Length = 309.761218
pocket1.Reversed = True

# Sketch on XZ plane
sketch7 = body.newObject("Sketcher::SketchObject", "Sketch006")
sketch7.AttachmentSupport = (doc.getObject("XZ_Plane"), [""])
sketch7.MapMode = "FlatFace"
sketch7.AttachmentOffset = App.Placement(Vector(0, 0, -3), App.Rotation())
sketch7.addGeometry(Part.Circle(Vector(120.3, 18.5, 0), Vector(0, 0, 1), 1.9), False)
sketch7.addGeometry(Part.LineSegment(Vector(137.8, 11.2, 0), Vector(137.8, 25.8, 0)), False)
sketch7.addGeometry(Part.LineSegment(Vector(137.8, 25.8, 0), Vector(144, 25.8, 0)), False)
sketch7.addGeometry(Part.LineSegment(Vector(144, 25.8, 0), Vector(144, 11.2, 0)), False)
sketch7.addGeometry(Part.LineSegment(Vector(144, 11.2, 0), Vector(137.8, 11.2, 0)), False)
sketch7.addConstraint(Sketcher.Constraint("Coincident", 1, 2, 2, 1))
sketch7.addConstraint(Sketcher.Constraint("Coincident", 2, 2, 3, 1))
sketch7.addConstraint(Sketcher.Constraint("Coincident", 3, 2, 4, 1))
sketch7.addConstraint(Sketcher.Constraint("Coincident", 4, 2, 1, 1))
sketch7.addConstraint(Sketcher.Constraint("Vertical", 1))
sketch7.addConstraint(Sketcher.Constraint("Horizontal", 2))
sketch7.addConstraint(Sketcher.Constraint("Vertical", 3))
sketch7.addConstraint(Sketcher.Constraint("Horizontal", 4))
sketch7.addConstraint(Sketcher.Constraint("Diameter", 0, 3.8))
sketch7.addConstraint(Sketcher.Constraint("DistanceX", 2, 1, 2, 2, 6.2))
sketch7.addConstraint(Sketcher.Constraint("DistanceY", 1, 1, 1, 2, 14.6))
sketch7.addConstraint(Sketcher.Constraint("DistanceX", -1, 1, 2, 2, 144.0))
sketch7.addConstraint(Sketcher.Constraint("DistanceX", -1, 1, 0, 3, 120.3))
sketch7.addConstraint(Sketcher.Constraint("DistanceY", -1, 1, 0, 3, 18.5))
sketch7.addConstraint(Sketcher.Constraint("DistanceY", -1, 1, 1, 2, 25.8))
pocket2 = body.newObject("PartDesign::Pocket", "Pocket001")
pocket2.Profile = sketch7
pocket2.Type = "ThroughAll"
pocket2.Reversed = True
doc.recompute()

mirrored = body.newObject("PartDesign::Mirrored", "Mirrored")
mirrored.Originals = [pad3, pad4, pad5, pocket1, pocket2]
mirrored.MirrorPlane = (doc.getObject("YZ_Plane"), [""])
body.Tip = mirrored

# Sketch on XZ plane
sketch8 = body.newObject("Sketcher::SketchObject", "Sketch007")
sketch8.AttachmentSupport = (doc.getObject("XZ_Plane"), [""])
sketch8.MapMode = "FlatFace"
sketch8.AttachmentOffset = App.Placement(Vector(0, 0, -3), App.Rotation())
sketch8.addGeometry(Part.Circle(Vector(-18, -14.5, 0), Vector(0, 0, 1), 1.8), False)
sketch8.addGeometry(Part.Circle(Vector(18, -14.5, 0), Vector(0, 0, 1), 1.8), False)
sketch8.addGeometry(Part.Circle(Vector(18, -50.5, 0), Vector(0, 0, 1), 1.8), False)
sketch8.addGeometry(Part.Circle(Vector(-18, -50.5, 0), Vector(0, 0, 1), 1.8), False)
sketch8.addConstraint(Sketcher.Constraint("Equal", 0, 1))
sketch8.addConstraint(Sketcher.Constraint("Equal", 1, 2))
sketch8.addConstraint(Sketcher.Constraint("Equal", 2, 3))
sketch8.addConstraint(Sketcher.Constraint("Symmetric", 0, 3, 1, 3, -2))
sketch8.addConstraint(Sketcher.Constraint("Symmetric", 2, 3, 3, 3, -2))
sketch8.addConstraint(Sketcher.Constraint("Vertical", 1, 3, 2, 3))
sketch8.addConstraint(Sketcher.Constraint("Diameter", 0, 3.5))
sketch8.addConstraint(Sketcher.Constraint("DistanceX", 0, 3, -1, 1, 18.0))
sketch8.addConstraint(Sketcher.Constraint("DistanceY", 2, 3, 1, 3, 36.0))
sketch8.addConstraint(Sketcher.Constraint("DistanceY", 0, 3, -1, 1, 14.5))
pocket3 = body.newObject("PartDesign::Pocket", "Pocket002")
pocket3.Profile = sketch8
pocket3.Type = "ThroughAll"
pocket3.Reversed = True
body2 = doc.addObject("PartDesign::Body", "Body001")

# Sketch on XZ plane
sketch9 = body2.newObject("Sketcher::SketchObject", "Sketch008")
sketch9.AttachmentSupport = (doc.getObject("XZ_Plane001"), [""])
sketch9.MapMode = "FlatFace"
sketch9.AttachmentOffset = App.Placement(Vector(0, 0, -21), App.Rotation())
sketch9.addGeometry(Part.LineSegment(Vector(-35, -160, 0), Vector(-35, -141, 0)), False)
sketch9.addGeometry(Part.ArcOfCircle(Part.Circle(Vector(0, -141, 0), Vector(0, 0, 1), 35), math.radians(0), math.radians(180)), False)
sketch9.addGeometry(Part.LineSegment(Vector(35, -141, 0), Vector(35, -160, 0)), False)
sketch9.addGeometry(Part.LineSegment(Vector(35, -160, 0), Vector(-35, -160, 0)), False)
sketch9.addConstraint(Sketcher.Constraint("Tangent", 0, 2, 1, 2))
sketch9.addConstraint(Sketcher.Constraint("Tangent", 1, 1, 2, 1))
sketch9.addConstraint(Sketcher.Constraint("Coincident", 2, 2, 3, 1))
sketch9.addConstraint(Sketcher.Constraint("Coincident", 3, 2, 0, 1))
sketch9.addConstraint(Sketcher.Constraint("Vertical", 0))
sketch9.addConstraint(Sketcher.Constraint("Vertical", 2))
sketch9.addConstraint(Sketcher.Constraint("Horizontal", 3))
sketch9.addConstraint(Sketcher.Constraint("PointOnObject", 1, 3, -2))
sketch9.addConstraint(Sketcher.Constraint("Radius", 1, 35.0))
sketch9.addConstraint(Sketcher.Constraint("DistanceY", 0, 1, 0, 2, 19.0))
sketch9.addConstraint(Sketcher.Constraint("DistanceY", 1, 3, -1, 1, 141.0))
pad6 = body2.newObject("PartDesign::Pad", "Pad005")
pad6.Profile = sketch9
pad6.Length = 3
pad6.Reversed = True
body.AllowCompound = True
doc.recompute()

boolean = body.newObject("PartDesign::Boolean", "Boolean")
boolean.Type = "Fuse"
boolean.addObjects([body2])

# Sketch on XZ plane
sketch10 = body.newObject("Sketcher::SketchObject", "Sketch009")
sketch10.AttachmentSupport = (doc.getObject("XZ_Plane"), [""])
sketch10.MapMode = "FlatFace"
sketch10.AttachmentOffset = App.Placement(Vector(0, 0, -24), App.Rotation())
sketch10.addGeometry(Part.LineSegment(Vector(-38, -160, 0), Vector(-38, -141, 0)), False)
sketch10.addGeometry(Part.ArcOfCircle(Part.Circle(Vector(0, -141, 0), Vector(0, 0, 1), 38), math.radians(0), math.radians(180)), False)
sketch10.addGeometry(Part.LineSegment(Vector(38, -141, 0), Vector(38, -160, 0)), False)
sketch10.addGeometry(Part.LineSegment(Vector(38, -160, 0), Vector(35, -160, 0)), False)
sketch10.addGeometry(Part.LineSegment(Vector(35, -160, 0), Vector(35, -141, 0)), False)
sketch10.addGeometry(Part.ArcOfCircle(Part.Circle(Vector(0, -141, 0), Vector(0, 0, 1), 35), math.radians(0), math.radians(180)), False)
sketch10.addGeometry(Part.LineSegment(Vector(-35, -141, 0), Vector(-35, -160, 0)), False)
sketch10.addGeometry(Part.LineSegment(Vector(-35, -160, 0), Vector(-38, -160, 0)), False)
sketch10.addConstraint(Sketcher.Constraint("Tangent", 0, 2, 1, 2))
sketch10.addConstraint(Sketcher.Constraint("Tangent", 1, 1, 2, 1))
sketch10.addConstraint(Sketcher.Constraint("Coincident", 2, 2, 3, 1))
sketch10.addConstraint(Sketcher.Constraint("Coincident", 3, 2, 4, 1))
sketch10.addConstraint(Sketcher.Constraint("Tangent", 4, 2, 5, 1))
sketch10.addConstraint(Sketcher.Constraint("Tangent", 5, 2, 6, 1))
sketch10.addConstraint(Sketcher.Constraint("Coincident", 6, 2, 7, 1))
sketch10.addConstraint(Sketcher.Constraint("Coincident", 7, 2, 0, 1))
sketch10.addConstraint(Sketcher.Constraint("Vertical", 0))
sketch10.addConstraint(Sketcher.Constraint("Vertical", 2))
sketch10.addConstraint(Sketcher.Constraint("Horizontal", 3))
sketch10.addConstraint(Sketcher.Constraint("Vertical", 4))
sketch10.addConstraint(Sketcher.Constraint("Vertical", 6))
sketch10.addConstraint(Sketcher.Constraint("Horizontal", 7))
sketch10.addConstraint(Sketcher.Constraint("Coincident", 5, 3, 1, 3))
sketch10.addConstraint(Sketcher.Constraint("Symmetric", 3, 2, 6, 2, -2))
sketch10.addConstraint(Sketcher.Constraint("Radius", 1, 38.0))
sketch10.addConstraint(Sketcher.Constraint("Radius", 5, 35.0))
sketch10.addConstraint(Sketcher.Constraint("DistanceY", 0, 1, 0, 2, 19.0))
sketch10.addConstraint(Sketcher.Constraint("DistanceY", 1, 3, -1, 1, 141.0))
pad7 = body.newObject("PartDesign::Pad", "Pad006")
pad7.Profile = sketch10
pad7.Length = 21

# Sketch on XZ plane
sketch11 = body.newObject("Sketcher::SketchObject", "Sketch010")
sketch11.AttachmentSupport = (doc.getObject("XZ_Plane"), [""])
sketch11.MapMode = "FlatFace"
sketch11.AttachmentOffset = App.Placement(Vector(0, 0, -21), App.Rotation())
sketch11.addGeometry(Part.LineSegment(Vector(-35, -160, 0), Vector(-35, -141, 0)), False)
sketch11.addGeometry(Part.ArcOfCircle(Part.Circle(Vector(0, -141, 0), Vector(0, 0, 1), 35), math.radians(0), math.radians(180)), False)
sketch11.addGeometry(Part.LineSegment(Vector(35, -141, 0), Vector(35, -160, 0)), False)
sketch11.addGeometry(Part.LineSegment(Vector(35, -160, 0), Vector(-35, -160, 0)), False)
sketch11.addConstraint(Sketcher.Constraint("Tangent", 0, 2, 1, 2))
sketch11.addConstraint(Sketcher.Constraint("Tangent", 1, 1, 2, 1))
sketch11.addConstraint(Sketcher.Constraint("Coincident", 2, 2, 3, 1))
sketch11.addConstraint(Sketcher.Constraint("Coincident", 3, 2, 0, 1))
sketch11.addConstraint(Sketcher.Constraint("Vertical", 0))
sketch11.addConstraint(Sketcher.Constraint("Vertical", 2))
sketch11.addConstraint(Sketcher.Constraint("Horizontal", 3))
sketch11.addConstraint(Sketcher.Constraint("PointOnObject", 1, 3, -2))
sketch11.addConstraint(Sketcher.Constraint("Radius", 1, 35.0))
sketch11.addConstraint(Sketcher.Constraint("DistanceY", 0, 1, 0, 2, 19.0))
sketch11.addConstraint(Sketcher.Constraint("DistanceY", 1, 3, -1, 1, 141.0))
pocket4 = body.newObject("PartDesign::Pocket", "Pocket003")
pocket4.Profile = sketch11
pocket4.Type = "ThroughAll"
pocket4.Reversed = True

doc.recompute()
